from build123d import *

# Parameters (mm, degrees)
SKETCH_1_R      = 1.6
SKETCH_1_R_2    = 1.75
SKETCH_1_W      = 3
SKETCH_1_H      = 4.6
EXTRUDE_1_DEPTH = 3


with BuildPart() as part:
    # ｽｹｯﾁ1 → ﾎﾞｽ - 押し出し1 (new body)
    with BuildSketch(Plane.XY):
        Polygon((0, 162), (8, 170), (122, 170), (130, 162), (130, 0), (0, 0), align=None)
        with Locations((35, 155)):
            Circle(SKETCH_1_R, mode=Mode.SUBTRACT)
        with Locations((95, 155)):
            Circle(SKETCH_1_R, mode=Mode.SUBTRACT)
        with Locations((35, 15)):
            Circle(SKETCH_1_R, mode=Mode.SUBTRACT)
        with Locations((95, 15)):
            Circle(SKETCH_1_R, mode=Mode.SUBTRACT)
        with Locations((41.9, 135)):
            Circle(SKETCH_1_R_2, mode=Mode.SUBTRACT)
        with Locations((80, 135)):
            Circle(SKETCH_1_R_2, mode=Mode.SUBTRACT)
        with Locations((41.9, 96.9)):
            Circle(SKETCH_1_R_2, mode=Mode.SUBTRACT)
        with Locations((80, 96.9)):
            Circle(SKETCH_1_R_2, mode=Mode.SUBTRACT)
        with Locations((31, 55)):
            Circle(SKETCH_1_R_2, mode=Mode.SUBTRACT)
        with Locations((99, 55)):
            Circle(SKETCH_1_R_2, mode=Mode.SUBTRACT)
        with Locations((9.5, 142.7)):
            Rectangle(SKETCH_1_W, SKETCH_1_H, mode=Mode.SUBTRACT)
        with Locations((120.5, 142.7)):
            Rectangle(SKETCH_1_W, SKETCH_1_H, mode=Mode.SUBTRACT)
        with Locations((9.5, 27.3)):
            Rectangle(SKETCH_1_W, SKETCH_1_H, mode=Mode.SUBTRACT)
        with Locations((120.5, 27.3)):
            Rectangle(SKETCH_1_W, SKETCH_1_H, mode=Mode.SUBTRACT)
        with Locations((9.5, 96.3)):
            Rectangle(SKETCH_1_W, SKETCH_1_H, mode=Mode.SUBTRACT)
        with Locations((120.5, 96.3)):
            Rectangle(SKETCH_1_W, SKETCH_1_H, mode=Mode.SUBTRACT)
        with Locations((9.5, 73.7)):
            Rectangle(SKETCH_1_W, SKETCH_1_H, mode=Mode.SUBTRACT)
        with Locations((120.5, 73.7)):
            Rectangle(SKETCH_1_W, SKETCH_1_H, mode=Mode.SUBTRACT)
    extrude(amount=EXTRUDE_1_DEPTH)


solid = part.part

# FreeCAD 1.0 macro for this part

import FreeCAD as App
import Part
import Sketcher

V = App.Vector


def add_polygon(sketch, points):
    """Adds a closed chain of lines whose ends are joined by coincident constraints."""
    first, n = sketch.GeometryCount, len(points)
    for a, b in zip(points, points[1:] + points[:1]):
        sketch.addGeometry(Part.LineSegment(App.Vector(*a, 0), App.Vector(*b, 0)), False)
    for i in range(n):
        sketch.addConstraint(Sketcher.Constraint("Coincident", first + i, 2, first + (i + 1) % n, 1))

doc = App.newDocument("Part")
body = doc.addObject("PartDesign::Body", "Body")

sketch1 = body.newObject("Sketcher::SketchObject", "Sketch")
sketch1.AttachmentSupport = (doc.getObject("XY_Plane"), [""])
sketch1.MapMode = "FlatFace"
add_polygon(sketch1, [(8, 170), (0, 162), (0, 0), (130, 0), (130, 162), (122, 170)])
add_polygon(sketch1, [(119, 25), (119, 29.6), (122, 29.6), (122, 25)])
sketch1.addGeometry(Part.Circle(V(95, 15, 0), V(0, 0, 1), 1.6), False)
sketch1.addGeometry(Part.Circle(V(99, 55, 0), V(0, 0, 1), 1.8), False)
add_polygon(sketch1, [(119, 71.4), (119, 76), (122, 76), (122, 71.4)])
sketch1.addGeometry(Part.Circle(V(35, 15, 0), V(0, 0, 1), 1.6), False)
add_polygon(sketch1, [(8, 25), (8, 29.6), (11, 29.6), (11, 25)])
sketch1.addGeometry(Part.Circle(V(31, 55, 0), V(0, 0, 1), 1.8), False)
add_polygon(sketch1, [(8, 71.4), (8, 76), (11, 76), (11, 71.4)])
add_polygon(sketch1, [(119, 94), (119, 98.6), (122, 98.6), (122, 94)])
sketch1.addGeometry(Part.Circle(V(80, 96.9, 0), V(0, 0, 1), 1.8), False)
add_polygon(sketch1, [(119, 140.4), (119, 145), (122, 145), (122, 140.4)])
sketch1.addGeometry(Part.Circle(V(95, 155, 0), V(0, 0, 1), 1.6), False)
sketch1.addGeometry(Part.Circle(V(80, 135, 0), V(0, 0, 1), 1.8), False)
sketch1.addGeometry(Part.Circle(V(41.9, 96.9, 0), V(0, 0, 1), 1.8), False)
add_polygon(sketch1, [(8, 94), (8, 98.6), (11, 98.6), (11, 94)])
sketch1.addGeometry(Part.Circle(V(41.9, 135, 0), V(0, 0, 1), 1.8), False)
sketch1.addGeometry(Part.Circle(V(35, 155, 0), V(0, 0, 1), 1.6), False)
add_polygon(sketch1, [(8, 140.4), (8, 145), (11, 145), (11, 140.4)])
sketch1.addConstraint([
    Sketcher.Constraint("Vertical", 1),
    Sketcher.Constraint("Horizontal", 2),
    Sketcher.Constraint("Vertical", 3),
    Sketcher.Constraint("Horizontal", 5),
    Sketcher.Constraint("Vertical", 6),
    Sketcher.Constraint("Horizontal", 7),
    Sketcher.Constraint("Vertical", 8),
    Sketcher.Constraint("Horizontal", 9),
    Sketcher.Constraint("Vertical", 12),
    Sketcher.Constraint("Horizontal", 13),
    Sketcher.Constraint("Vertical", 14),
    Sketcher.Constraint("Horizontal", 15),
    Sketcher.Constraint("Vertical", 17),
    Sketcher.Constraint("Horizontal", 18),
    Sketcher.Constraint("Vertical", 19),
    Sketcher.Constraint("Horizontal", 20),
    Sketcher.Constraint("Vertical", 22),
    Sketcher.Constraint("Horizontal", 23),
    Sketcher.Constraint("Vertical", 24),
    Sketcher.Constraint("Horizontal", 25),
    Sketcher.Constraint("Vertical", 26),
    Sketcher.Constraint("Horizontal", 27),
    Sketcher.Constraint("Vertical", 28),
    Sketcher.Constraint("Horizontal", 29),
    Sketcher.Constraint("Vertical", 31),
    Sketcher.Constraint("Horizontal", 32),
    Sketcher.Constraint("Vertical", 33),
    Sketcher.Constraint("Horizontal", 34),
    Sketcher.Constraint("Vertical", 38),
    Sketcher.Constraint("Horizontal", 39),
    Sketcher.Constraint("Vertical", 40),
    Sketcher.Constraint("Horizontal", 41),
    Sketcher.Constraint("Vertical", 44),
    Sketcher.Constraint("Horizontal", 45),
    Sketcher.Constraint("Vertical", 46),
    Sketcher.Constraint("Horizontal", 47),
    Sketcher.Constraint("Coincident", 1, 2, -1, 1),
    Sketcher.Constraint("Equal", 10, 16),
    Sketcher.Constraint("Equal", 11, 21),
    Sketcher.Constraint("Equal", 21, 30),
    Sketcher.Constraint("Equal", 16, 35),
    Sketcher.Constraint("Equal", 30, 36),
    Sketcher.Constraint("Equal", 36, 37),
    Sketcher.Constraint("Equal", 37, 42),
    Sketcher.Constraint("Equal", 35, 43),
    Sketcher.Constraint("Perpendicular", 0, 4),
    Sketcher.Constraint("Horizontal", 10, 3, 16, 3),
    Sketcher.Constraint("Horizontal", 11, 3, 21, 3),
    Sketcher.Constraint("Horizontal", 30, 3, 37, 3),
    Sketcher.Constraint("Horizontal", 36, 3, 42, 3),
    Sketcher.Constraint("Horizontal", 35, 3, 43, 3),
    Sketcher.Constraint("Horizontal", 0, 2, 3, 2),
    Sketcher.Constraint("Horizontal", 7, 2, 17, 2),
    Sketcher.Constraint("Horizontal", 9, 2, 19, 2),
    Sketcher.Constraint("Horizontal", 13, 2, 22, 2),
    Sketcher.Constraint("Horizontal", 15, 2, 24, 2),
    Sketcher.Constraint("Horizontal", 27, 2, 38, 2),
    Sketcher.Constraint("Horizontal", 29, 2, 40, 2),
    Sketcher.Constraint("Horizontal", 32, 2, 44, 2),
    Sketcher.Constraint("Horizontal", 34, 2, 46, 2),
    Sketcher.Constraint("Vertical", 10, 3, 35, 3),
    Sketcher.Constraint("Vertical", 30, 3, 36, 3),
    Sketcher.Constraint("Vertical", 37, 3, 42, 3),
    Sketcher.Constraint("Vertical", 16, 3, 43, 3),
    Sketcher.Constraint("Vertical", 4, 2, 7, 2),
    Sketcher.Constraint("Vertical", 9, 2, 12, 2),
    Sketcher.Constraint("Vertical", 8, 2, 13, 2),
    Sketcher.Constraint("Vertical", 5, 2, 17, 2),
    Sketcher.Constraint("Vertical", 20, 2, 22, 2),
    Sketcher.Constraint("Vertical", 19, 2, 23, 2),
    Sketcher.Constraint("Vertical", 15, 2, 26, 2),
    Sketcher.Constraint("Vertical", 14, 2, 27, 2),
    Sketcher.Constraint("Vertical", 29, 2, 31, 2),
    Sketcher.Constraint("Vertical", 28, 2, 32, 2),
    Sketcher.Constraint("Vertical", 25, 2, 38, 2),
    Sketcher.Constraint("Vertical", 24, 2, 39, 2),
    Sketcher.Constraint("Vertical", 41, 2, 44, 2),
    Sketcher.Constraint("Vertical", 40, 2, 45, 2),
    Sketcher.Constraint("Equal", 15, 18),
    Sketcher.Constraint("Equal", 8, 12),
    Sketcher.Constraint("Equal", 24, 26),
    Sketcher.Constraint("Equal", 28, 31),
    Sketcher.Constraint("Equal", 0, 4),
    Sketcher.Constraint("Diameter", 10, 3.2),
    Sketcher.Constraint("Diameter", 11, 3.5),
    Sketcher.Constraint("DistanceX", 2, 1, 2, 2, 130.0),
    Sketcher.Constraint("DistanceX", 5, 2, 5, 1, 114.0),
    Sketcher.Constraint("DistanceX", 7, 1, 7, 2, 3.0),
    Sketcher.Constraint("DistanceY", 1, 2, 1, 1, 162.0),
    Sketcher.Constraint("DistanceY", 6, 1, 6, 2, 4.6),
    Sketcher.Constraint("DistanceX", -1, 1, 10, 3, 95.0),
    Sketcher.Constraint("DistanceY", -1, 1, 10, 3, 15.0),
    Sketcher.Constraint("DistanceX", -1, 1, 11, 3, 99.0),
    Sketcher.Constraint("DistanceY", -1, 1, 11, 3, 55.0),
    Sketcher.Constraint("DistanceX", -1, 1, 16, 3, 35.0),
    Sketcher.Constraint("DistanceX", -1, 1, 21, 3, 31.0),
    Sketcher.Constraint("DistanceX", -1, 1, 30, 3, 80.0),
    Sketcher.Constraint("DistanceY", -1, 1, 35, 3, 155.0),
    Sketcher.Constraint("DistanceY", -1, 1, 36, 3, 135.0),
    Sketcher.Constraint("DistanceY", -1, 1, 8, 2, 25.0),
    Sketcher.Constraint("DistanceY", -1, 1, 12, 2, 76.0),
    Sketcher.Constraint("DistanceY", -1, 1, 28, 2, 94.0),
    Sketcher.Constraint("DistanceY", -1, 1, 31, 2, 145.0),
    Sketcher.Constraint("DistanceY", -1, 1, 30, 3, 96.9),
    Sketcher.Constraint("DistanceX", -1, 1, 37, 3, 41.9),
])
pad1 = body.newObject("PartDesign::Pad", "Pad")
pad1.Profile = sketch1
pad1.Length = 3

doc.recompute()
